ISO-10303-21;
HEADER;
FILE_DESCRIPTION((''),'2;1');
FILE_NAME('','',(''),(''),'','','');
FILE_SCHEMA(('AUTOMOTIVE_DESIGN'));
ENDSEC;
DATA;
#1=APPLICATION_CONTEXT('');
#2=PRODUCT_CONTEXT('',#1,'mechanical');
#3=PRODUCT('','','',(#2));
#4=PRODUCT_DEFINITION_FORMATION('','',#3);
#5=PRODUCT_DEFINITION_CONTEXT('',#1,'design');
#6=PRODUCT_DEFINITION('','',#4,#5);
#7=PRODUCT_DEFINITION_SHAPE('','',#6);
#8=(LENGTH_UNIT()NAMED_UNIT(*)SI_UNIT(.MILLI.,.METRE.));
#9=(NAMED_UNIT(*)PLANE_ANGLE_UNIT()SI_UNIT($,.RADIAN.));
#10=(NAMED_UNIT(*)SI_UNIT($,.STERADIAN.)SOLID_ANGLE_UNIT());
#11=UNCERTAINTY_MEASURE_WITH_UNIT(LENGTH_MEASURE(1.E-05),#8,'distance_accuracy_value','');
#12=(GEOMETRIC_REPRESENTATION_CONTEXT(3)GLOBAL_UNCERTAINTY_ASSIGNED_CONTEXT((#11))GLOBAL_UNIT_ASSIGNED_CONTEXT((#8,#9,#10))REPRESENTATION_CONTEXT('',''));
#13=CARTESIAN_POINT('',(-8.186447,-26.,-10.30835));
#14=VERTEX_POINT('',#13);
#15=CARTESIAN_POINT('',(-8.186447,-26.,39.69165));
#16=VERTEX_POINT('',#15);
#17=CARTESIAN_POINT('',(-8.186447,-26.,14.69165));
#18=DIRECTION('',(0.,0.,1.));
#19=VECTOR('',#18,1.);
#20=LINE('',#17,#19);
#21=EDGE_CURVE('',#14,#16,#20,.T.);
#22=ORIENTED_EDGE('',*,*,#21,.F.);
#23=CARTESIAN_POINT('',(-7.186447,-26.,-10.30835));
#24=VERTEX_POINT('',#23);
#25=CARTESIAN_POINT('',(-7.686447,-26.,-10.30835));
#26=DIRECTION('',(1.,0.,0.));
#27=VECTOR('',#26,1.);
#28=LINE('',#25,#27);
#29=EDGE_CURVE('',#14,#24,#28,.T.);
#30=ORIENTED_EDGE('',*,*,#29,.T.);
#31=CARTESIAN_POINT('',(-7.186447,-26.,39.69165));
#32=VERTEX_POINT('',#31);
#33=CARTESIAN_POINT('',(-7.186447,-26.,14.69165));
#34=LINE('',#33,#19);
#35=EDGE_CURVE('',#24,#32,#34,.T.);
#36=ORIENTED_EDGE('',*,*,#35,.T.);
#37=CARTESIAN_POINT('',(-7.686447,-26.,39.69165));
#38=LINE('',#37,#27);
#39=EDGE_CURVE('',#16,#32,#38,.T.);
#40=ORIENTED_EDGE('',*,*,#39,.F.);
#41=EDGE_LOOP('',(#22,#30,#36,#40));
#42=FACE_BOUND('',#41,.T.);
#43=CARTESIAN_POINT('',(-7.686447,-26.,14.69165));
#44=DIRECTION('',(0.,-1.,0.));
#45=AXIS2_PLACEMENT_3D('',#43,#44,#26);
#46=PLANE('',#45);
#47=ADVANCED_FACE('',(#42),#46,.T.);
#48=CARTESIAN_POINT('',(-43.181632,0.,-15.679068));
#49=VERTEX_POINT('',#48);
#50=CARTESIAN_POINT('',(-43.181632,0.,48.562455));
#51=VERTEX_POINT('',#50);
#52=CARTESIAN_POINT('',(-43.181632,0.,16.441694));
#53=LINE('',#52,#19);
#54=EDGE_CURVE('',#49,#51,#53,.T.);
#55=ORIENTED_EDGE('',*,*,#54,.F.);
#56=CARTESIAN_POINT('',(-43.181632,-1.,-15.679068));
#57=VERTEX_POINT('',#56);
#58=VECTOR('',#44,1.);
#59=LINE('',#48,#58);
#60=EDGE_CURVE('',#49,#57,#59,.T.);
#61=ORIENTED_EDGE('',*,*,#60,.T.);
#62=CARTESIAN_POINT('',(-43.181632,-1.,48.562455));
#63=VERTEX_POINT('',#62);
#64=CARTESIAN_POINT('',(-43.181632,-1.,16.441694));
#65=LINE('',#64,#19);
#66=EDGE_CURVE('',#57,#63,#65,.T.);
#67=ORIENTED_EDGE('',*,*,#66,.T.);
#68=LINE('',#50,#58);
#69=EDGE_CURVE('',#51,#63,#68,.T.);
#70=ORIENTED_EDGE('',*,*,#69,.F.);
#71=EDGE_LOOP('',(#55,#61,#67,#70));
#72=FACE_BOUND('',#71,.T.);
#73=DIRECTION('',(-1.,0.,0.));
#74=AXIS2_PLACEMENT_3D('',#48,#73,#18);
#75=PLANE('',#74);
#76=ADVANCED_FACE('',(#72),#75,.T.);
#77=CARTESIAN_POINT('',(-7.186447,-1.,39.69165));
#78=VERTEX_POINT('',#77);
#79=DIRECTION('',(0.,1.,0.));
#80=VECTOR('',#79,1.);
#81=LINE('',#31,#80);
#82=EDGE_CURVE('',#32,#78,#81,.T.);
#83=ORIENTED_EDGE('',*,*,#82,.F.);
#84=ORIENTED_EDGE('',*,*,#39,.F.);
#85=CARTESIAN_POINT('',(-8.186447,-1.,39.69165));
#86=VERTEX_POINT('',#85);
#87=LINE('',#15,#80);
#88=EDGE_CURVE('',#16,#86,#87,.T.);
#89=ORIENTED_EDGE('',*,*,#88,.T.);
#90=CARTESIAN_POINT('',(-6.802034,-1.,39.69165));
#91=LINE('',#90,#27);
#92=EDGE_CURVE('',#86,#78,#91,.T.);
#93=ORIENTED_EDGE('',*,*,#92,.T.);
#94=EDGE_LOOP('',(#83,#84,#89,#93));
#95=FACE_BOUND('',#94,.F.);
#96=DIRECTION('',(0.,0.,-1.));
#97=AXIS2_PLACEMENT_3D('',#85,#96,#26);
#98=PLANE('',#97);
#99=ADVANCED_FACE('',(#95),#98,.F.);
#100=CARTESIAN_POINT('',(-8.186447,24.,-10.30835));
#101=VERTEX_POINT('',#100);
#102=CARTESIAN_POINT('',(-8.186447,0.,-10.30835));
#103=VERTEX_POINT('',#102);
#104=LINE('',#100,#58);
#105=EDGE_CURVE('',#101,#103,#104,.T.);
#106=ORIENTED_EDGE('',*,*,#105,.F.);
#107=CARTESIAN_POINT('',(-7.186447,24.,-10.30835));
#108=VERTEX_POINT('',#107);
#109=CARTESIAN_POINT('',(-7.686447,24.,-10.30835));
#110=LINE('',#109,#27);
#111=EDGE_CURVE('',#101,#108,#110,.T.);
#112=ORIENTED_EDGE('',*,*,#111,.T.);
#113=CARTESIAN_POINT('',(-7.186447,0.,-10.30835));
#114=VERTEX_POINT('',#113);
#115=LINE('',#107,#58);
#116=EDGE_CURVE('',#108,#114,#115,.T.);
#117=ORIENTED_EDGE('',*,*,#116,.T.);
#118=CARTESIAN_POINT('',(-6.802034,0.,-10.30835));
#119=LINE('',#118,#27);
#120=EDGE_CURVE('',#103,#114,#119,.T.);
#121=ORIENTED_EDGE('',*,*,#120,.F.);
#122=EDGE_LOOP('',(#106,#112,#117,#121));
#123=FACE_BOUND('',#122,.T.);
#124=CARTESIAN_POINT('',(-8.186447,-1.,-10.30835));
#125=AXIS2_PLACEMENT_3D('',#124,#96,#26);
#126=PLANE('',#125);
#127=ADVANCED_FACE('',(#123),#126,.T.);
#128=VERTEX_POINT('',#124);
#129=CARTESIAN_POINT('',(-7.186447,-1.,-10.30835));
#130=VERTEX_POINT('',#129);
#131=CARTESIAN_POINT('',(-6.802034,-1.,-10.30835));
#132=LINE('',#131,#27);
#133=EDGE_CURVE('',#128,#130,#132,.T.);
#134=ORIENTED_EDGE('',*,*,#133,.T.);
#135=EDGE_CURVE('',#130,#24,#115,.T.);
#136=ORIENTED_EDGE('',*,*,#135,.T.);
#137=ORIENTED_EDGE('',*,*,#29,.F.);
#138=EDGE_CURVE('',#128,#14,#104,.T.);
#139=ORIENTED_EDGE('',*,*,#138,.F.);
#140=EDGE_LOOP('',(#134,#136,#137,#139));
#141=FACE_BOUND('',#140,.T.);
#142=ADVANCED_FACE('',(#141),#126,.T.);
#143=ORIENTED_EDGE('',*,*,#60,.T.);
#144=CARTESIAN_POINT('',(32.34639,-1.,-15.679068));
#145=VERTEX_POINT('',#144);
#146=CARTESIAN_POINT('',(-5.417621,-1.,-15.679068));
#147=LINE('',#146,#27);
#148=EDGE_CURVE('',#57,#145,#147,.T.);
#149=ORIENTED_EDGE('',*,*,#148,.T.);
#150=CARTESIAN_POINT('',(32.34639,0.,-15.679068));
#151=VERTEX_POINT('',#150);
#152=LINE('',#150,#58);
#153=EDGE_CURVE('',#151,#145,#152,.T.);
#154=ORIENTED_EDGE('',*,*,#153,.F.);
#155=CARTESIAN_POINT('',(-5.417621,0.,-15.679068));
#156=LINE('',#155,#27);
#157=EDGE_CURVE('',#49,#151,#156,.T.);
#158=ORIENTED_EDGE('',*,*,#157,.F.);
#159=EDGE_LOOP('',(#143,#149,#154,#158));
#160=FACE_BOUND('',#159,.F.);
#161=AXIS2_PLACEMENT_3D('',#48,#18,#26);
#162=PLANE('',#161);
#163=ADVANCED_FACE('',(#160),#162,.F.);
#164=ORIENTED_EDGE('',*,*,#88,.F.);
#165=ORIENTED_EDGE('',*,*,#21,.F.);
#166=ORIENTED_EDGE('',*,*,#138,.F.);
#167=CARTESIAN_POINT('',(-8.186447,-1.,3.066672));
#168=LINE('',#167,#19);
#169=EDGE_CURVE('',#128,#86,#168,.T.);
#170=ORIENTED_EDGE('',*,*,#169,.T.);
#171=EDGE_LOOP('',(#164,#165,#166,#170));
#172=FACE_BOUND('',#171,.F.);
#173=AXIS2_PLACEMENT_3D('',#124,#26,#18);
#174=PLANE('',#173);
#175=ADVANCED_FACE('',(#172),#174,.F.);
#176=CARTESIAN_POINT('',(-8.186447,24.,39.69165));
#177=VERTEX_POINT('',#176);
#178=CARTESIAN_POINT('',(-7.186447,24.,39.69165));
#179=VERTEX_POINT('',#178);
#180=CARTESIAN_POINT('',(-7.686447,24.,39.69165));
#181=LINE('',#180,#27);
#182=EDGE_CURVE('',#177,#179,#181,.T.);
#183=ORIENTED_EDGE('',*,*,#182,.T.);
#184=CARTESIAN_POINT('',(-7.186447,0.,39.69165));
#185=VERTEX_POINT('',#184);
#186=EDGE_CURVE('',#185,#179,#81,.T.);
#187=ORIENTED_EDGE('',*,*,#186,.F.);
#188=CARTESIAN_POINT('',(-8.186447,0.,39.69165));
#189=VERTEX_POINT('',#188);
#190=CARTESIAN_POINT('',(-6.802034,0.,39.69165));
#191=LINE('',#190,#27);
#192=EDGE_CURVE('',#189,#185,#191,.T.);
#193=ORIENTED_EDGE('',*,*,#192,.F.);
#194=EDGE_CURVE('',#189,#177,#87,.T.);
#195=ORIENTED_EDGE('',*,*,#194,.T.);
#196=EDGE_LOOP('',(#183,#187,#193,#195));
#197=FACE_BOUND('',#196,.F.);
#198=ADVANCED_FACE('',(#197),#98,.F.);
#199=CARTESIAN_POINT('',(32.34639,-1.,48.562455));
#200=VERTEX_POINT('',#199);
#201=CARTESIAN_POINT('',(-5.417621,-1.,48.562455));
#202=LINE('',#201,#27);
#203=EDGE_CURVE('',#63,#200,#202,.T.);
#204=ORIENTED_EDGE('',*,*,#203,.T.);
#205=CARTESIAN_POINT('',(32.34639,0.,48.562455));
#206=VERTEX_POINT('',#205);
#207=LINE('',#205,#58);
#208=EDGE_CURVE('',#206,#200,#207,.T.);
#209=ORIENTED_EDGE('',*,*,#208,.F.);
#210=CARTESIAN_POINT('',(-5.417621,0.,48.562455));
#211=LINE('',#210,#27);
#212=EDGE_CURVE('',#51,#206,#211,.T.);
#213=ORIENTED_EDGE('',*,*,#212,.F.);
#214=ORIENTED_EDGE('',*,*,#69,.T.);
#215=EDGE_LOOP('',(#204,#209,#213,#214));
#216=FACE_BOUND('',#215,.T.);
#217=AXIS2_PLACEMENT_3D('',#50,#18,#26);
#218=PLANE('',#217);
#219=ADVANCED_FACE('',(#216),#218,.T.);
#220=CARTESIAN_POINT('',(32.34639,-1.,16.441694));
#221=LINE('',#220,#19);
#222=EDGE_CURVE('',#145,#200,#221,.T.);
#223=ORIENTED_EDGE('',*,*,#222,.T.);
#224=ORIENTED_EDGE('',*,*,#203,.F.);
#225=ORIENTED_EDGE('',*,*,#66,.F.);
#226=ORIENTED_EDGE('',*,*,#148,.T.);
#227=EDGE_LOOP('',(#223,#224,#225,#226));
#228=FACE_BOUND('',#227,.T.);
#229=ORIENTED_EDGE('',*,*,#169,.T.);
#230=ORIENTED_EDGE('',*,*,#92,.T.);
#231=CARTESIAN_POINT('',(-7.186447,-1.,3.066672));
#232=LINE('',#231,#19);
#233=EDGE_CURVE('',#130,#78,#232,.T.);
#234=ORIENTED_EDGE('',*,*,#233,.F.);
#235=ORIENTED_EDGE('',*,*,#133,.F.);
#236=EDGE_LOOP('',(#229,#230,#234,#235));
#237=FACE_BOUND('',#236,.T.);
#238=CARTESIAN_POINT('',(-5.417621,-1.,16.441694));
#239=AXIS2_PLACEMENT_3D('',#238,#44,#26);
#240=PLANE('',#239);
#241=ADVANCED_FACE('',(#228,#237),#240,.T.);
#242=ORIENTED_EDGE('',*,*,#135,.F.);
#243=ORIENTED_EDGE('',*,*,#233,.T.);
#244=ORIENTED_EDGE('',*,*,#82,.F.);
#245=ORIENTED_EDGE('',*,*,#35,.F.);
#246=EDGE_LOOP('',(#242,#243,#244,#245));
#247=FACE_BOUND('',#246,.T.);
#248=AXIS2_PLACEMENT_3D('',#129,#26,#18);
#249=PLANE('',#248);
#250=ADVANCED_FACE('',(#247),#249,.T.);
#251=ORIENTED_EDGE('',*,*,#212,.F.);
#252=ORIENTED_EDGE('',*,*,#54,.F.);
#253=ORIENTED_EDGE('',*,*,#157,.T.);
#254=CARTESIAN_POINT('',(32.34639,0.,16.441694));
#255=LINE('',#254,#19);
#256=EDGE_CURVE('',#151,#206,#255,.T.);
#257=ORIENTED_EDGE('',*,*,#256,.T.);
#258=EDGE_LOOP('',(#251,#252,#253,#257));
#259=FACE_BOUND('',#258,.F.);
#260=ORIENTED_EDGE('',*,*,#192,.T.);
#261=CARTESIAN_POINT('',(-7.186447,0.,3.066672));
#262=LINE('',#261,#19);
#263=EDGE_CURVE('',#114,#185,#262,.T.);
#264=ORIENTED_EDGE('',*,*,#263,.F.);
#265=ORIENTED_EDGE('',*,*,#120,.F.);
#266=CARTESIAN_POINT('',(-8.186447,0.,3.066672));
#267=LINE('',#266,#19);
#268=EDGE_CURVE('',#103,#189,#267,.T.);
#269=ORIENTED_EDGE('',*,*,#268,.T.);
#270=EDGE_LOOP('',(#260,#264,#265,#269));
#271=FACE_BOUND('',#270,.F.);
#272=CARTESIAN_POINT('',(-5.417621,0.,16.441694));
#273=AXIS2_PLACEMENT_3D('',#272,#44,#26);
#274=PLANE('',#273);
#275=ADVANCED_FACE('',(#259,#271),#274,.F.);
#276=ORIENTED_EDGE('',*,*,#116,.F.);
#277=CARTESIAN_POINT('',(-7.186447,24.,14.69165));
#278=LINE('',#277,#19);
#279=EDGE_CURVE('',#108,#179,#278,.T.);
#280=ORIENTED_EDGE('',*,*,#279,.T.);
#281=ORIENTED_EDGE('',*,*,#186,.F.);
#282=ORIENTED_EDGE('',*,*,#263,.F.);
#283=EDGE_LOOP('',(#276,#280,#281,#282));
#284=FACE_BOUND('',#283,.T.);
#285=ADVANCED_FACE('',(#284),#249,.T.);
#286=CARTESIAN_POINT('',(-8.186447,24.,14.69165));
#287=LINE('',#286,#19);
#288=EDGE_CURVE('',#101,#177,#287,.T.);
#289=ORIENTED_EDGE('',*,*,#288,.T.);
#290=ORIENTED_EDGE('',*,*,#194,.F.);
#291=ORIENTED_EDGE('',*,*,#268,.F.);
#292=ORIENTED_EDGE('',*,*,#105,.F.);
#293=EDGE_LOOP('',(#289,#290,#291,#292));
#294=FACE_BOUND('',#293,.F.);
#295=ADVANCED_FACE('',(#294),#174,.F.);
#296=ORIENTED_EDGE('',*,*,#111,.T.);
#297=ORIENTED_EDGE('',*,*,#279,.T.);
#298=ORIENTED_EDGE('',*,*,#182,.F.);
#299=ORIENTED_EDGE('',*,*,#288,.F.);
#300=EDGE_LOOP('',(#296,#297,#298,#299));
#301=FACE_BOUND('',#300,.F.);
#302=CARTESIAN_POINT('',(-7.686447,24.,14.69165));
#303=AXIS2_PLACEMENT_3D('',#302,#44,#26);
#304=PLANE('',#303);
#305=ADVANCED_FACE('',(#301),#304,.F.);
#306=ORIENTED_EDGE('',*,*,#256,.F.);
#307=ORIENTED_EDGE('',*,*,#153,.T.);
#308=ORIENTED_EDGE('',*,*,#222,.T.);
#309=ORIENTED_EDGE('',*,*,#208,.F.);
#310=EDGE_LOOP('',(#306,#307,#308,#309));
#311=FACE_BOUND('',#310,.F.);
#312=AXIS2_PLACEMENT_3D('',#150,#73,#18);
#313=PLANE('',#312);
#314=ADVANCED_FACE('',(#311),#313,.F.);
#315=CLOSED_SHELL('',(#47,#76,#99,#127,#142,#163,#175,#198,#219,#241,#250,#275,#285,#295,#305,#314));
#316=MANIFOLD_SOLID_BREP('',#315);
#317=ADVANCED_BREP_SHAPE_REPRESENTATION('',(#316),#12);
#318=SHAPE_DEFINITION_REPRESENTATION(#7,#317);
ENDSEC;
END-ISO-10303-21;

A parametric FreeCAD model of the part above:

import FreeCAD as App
import Part
import Sketcher

doc = App.newDocument("Part")
body = doc.addObject("PartDesign::Body", "Body")

sketch1 = doc.addObject("Sketcher::SketchObject", "Sketch")
body.addObject(sketch1)
sketch1.AttachmentSupport = (doc.XZ_Plane, [""])
sketch1.MapMode = "FlatFace"
sketch1.addGeometry([
    Part.LineSegment(App.Vector(-43.181632, 48.562455, 0), App.Vector(-43.181632, -15.679068, 0)),
    Part.LineSegment(App.Vector(-43.181632, -15.679068, 0), App.Vector(32.34639, -15.679068, 0)),
    Part.LineSegment(App.Vector(32.34639, -15.679068, 0), App.Vector(32.34639, 48.562455, 0)),
    Part.LineSegment(App.Vector(32.34639, 48.562455, 0), App.Vector(-43.181632, 48.562455, 0)),
], False)
sketch1.addConstraint([
    Sketcher.Constraint("Coincident", 0, 2, 1, 1),
    Sketcher.Constraint("Coincident", 1, 2, 2, 1),
    Sketcher.Constraint("Coincident", 2, 2, 3, 1),
    Sketcher.Constraint("Coincident", 3, 2, 0, 1),
    Sketcher.Constraint("Vertical", 0),
    Sketcher.Constraint("Horizontal", 1),
    Sketcher.Constraint("Vertical", 2),
    Sketcher.Constraint("Horizontal", 3),
    Sketcher.Constraint("DistanceX", 1, 1, 1, 2, 75.528022),
    Sketcher.Constraint("DistanceY", 0, 2, 0, 1, 64.241523),
    Sketcher.Constraint("DistanceX", -1, 1, 1, 2, 32.34639),
    Sketcher.Constraint("DistanceY", 0, 2, -1, 1, 15.679068),
])
pad1 = doc.addObject("PartDesign::Pad", "Pad")
body.addObject(pad1)
pad1.Profile = sketch1
pad1.Length = 1

sketch2 = doc.addObject("Sketcher::SketchObject", "Sketch001")
body.addObject(sketch2)
sketch2.AttachmentSupport = (doc.XZ_Plane, [""])
sketch2.MapMode = "FlatFace"
sketch2.AttachmentOffset = App.Placement(App.Vector(0, 0, 1), App.Rotation())
sketch2.addGeometry([
    Part.LineSegment(App.Vector(-8.186447, 39.69165, 0), App.Vector(-8.186447, -10.30835, 0)),
    Part.LineSegment(App.Vector(-8.186447, -10.30835, 0), App.Vector(-7.186447, -10.30835, 0)),
    Part.LineSegment(App.Vector(-7.186447, -10.30835, 0), App.Vector(-7.186447, 39.69165, 0)),
    Part.LineSegment(App.Vector(-7.186447, 39.69165, 0), App.Vector(-8.186447, 39.69165, 0)),
], False)
sketch2.addConstraint([
    Sketcher.Constraint("Coincident", 0, 2, 1, 1),
    Sketcher.Constraint("Coincident", 1, 2, 2, 1),
    Sketcher.Constraint("Coincident", 2, 2, 3, 1),
    Sketcher.Constraint("Coincident", 3, 2, 0, 1),
    Sketcher.Constraint("Vertical", 0),
    Sketcher.Constraint("Horizontal", 1),
    Sketcher.Constraint("Vertical", 2),
    Sketcher.Constraint("Horizontal", 3),
    Sketcher.Constraint("DistanceX", 1, 1, 1, 2, 1.0),
    Sketcher.Constraint("DistanceY", 0, 2, 0, 1, 50.0),
    Sketcher.Constraint("DistanceY", 0, 2, -1, 1, 10.30835),
    Sketcher.Constraint("DistanceX", 0, 2, -1, 1, 8.186447),
])
pad2 = doc.addObject("PartDesign::Pad", "Pad001")
body.addObject(pad2)
pad2.Profile = sketch2
pad2.Length = 50
pad2.Midplane = True

doc.recompute()
